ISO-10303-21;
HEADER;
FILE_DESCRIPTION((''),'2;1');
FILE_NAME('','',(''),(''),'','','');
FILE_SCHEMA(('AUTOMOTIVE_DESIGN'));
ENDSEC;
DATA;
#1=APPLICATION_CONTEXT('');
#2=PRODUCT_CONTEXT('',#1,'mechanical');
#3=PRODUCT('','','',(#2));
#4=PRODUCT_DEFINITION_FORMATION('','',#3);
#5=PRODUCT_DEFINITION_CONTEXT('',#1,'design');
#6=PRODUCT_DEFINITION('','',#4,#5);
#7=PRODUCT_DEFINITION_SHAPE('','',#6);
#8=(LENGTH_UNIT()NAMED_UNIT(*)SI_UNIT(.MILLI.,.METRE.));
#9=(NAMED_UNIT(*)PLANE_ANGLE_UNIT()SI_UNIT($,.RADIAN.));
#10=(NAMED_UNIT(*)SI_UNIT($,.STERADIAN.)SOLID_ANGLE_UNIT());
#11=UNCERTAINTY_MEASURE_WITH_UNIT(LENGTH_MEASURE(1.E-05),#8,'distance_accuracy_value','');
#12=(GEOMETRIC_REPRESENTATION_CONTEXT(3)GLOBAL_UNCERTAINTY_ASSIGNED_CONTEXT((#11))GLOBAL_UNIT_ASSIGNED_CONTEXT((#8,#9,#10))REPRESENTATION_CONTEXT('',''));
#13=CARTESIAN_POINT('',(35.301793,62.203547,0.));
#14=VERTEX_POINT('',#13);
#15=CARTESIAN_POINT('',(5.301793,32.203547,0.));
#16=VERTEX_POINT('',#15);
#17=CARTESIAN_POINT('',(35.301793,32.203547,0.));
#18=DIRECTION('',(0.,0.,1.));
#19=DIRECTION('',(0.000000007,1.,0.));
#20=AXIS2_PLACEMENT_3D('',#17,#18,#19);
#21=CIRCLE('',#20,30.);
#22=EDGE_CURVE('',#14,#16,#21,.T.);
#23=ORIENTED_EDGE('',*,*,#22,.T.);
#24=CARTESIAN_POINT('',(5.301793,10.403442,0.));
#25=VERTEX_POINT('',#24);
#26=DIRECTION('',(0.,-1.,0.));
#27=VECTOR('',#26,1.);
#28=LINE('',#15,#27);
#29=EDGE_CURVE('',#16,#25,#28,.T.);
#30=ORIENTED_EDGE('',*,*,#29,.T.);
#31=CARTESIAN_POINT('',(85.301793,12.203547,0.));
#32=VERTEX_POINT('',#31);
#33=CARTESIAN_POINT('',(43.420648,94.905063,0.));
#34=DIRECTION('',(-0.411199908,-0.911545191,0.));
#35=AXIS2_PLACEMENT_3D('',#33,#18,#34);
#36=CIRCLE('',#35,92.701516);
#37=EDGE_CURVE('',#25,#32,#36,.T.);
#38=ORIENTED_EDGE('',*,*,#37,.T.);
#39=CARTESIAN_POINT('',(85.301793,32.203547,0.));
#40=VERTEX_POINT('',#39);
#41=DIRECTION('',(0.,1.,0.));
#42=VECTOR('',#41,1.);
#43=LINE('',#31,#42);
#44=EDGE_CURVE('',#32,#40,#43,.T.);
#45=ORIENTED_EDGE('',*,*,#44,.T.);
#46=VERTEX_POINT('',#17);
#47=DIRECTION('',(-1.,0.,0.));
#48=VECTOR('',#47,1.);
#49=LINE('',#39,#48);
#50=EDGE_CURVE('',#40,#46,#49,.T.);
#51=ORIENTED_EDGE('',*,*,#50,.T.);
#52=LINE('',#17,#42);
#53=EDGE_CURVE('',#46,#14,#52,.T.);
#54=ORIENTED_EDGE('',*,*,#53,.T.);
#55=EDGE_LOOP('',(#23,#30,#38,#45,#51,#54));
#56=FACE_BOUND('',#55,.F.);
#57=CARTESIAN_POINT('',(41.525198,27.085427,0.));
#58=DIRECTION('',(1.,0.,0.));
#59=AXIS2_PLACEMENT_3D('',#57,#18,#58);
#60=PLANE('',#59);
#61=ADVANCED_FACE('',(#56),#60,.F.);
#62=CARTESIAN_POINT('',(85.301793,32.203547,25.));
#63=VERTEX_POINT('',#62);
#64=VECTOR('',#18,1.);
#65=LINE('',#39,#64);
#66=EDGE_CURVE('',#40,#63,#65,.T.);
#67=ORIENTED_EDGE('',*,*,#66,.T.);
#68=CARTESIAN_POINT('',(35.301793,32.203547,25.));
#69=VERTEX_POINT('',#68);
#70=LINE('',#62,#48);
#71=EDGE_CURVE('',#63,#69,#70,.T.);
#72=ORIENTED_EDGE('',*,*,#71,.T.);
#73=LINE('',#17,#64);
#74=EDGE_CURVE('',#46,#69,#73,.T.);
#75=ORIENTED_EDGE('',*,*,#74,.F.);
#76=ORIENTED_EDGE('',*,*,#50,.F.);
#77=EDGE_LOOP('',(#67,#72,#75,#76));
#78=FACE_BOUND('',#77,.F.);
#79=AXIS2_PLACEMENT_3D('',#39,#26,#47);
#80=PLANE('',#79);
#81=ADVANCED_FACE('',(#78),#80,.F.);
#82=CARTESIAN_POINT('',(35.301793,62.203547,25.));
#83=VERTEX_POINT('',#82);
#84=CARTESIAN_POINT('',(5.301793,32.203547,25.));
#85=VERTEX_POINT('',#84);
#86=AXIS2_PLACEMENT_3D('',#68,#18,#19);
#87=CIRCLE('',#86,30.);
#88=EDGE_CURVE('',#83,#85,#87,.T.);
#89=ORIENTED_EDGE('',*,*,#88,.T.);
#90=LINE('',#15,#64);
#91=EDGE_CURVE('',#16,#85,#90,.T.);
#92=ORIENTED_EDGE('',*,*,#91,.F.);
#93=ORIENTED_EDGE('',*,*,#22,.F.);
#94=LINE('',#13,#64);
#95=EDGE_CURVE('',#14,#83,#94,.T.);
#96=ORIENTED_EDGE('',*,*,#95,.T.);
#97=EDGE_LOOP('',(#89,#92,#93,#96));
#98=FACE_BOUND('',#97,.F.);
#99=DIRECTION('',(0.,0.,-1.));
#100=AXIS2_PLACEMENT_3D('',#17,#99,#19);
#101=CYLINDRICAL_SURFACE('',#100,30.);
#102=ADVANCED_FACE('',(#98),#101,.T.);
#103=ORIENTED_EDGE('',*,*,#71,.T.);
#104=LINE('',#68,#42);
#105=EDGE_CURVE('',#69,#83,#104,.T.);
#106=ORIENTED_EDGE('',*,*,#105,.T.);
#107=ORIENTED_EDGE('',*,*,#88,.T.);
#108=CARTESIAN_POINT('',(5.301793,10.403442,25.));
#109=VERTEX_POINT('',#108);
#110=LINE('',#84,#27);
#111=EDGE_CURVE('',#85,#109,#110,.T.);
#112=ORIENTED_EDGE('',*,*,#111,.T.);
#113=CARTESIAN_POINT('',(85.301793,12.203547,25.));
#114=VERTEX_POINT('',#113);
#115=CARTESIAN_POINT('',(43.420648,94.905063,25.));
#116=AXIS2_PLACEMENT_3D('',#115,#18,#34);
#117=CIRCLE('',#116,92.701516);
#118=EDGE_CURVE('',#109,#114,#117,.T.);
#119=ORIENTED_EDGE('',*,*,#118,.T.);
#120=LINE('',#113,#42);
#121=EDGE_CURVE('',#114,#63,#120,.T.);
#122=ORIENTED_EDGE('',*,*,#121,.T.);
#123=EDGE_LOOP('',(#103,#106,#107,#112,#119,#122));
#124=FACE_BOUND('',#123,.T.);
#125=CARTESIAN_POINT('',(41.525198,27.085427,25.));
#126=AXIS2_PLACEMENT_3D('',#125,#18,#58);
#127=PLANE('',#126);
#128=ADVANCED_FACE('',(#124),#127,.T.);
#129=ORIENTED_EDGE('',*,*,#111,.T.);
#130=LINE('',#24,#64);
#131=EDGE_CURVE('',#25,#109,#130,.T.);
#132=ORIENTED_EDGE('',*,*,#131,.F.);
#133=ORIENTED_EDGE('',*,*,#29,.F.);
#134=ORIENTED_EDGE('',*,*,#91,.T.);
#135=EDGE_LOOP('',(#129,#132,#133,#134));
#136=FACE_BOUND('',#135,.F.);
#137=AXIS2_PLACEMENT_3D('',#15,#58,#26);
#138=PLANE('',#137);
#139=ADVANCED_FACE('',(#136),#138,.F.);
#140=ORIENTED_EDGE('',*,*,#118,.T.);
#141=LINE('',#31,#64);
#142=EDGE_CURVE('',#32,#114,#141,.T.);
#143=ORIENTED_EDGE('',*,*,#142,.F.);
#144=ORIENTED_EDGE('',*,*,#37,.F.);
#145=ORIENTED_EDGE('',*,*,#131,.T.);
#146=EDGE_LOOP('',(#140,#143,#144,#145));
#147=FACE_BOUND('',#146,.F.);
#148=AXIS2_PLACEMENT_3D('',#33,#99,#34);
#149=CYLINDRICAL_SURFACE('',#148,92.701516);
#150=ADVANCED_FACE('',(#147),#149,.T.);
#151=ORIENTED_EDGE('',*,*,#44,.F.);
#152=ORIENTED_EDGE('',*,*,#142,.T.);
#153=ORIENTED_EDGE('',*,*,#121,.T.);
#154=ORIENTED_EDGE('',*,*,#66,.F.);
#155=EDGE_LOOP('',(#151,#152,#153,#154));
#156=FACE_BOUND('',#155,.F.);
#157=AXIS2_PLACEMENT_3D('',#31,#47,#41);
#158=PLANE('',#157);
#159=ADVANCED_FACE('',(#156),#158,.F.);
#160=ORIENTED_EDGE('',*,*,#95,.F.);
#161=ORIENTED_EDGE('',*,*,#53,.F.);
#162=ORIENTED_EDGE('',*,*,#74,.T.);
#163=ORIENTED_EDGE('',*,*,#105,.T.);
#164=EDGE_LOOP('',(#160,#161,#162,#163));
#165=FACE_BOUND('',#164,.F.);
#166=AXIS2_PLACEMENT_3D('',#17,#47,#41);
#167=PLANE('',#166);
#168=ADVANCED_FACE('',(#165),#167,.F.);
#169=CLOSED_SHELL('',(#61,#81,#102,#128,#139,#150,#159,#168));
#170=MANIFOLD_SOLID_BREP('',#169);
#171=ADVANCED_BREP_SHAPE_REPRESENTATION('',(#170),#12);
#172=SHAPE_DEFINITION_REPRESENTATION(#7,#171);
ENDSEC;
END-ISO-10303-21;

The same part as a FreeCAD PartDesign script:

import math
import FreeCAD as App
import Part
import Sketcher
from FreeCAD import Vector

doc = App.newDocument("Part")
body = doc.addObject("PartDesign::Body", "Body")

sketch1 = doc.addObject("Sketcher::SketchObject", "Sketch")
body.addObject(sketch1)
sketch1.AttachmentSupport = (doc.XY_Plane, [""])
sketch1.MapMode = "FlatFace"
sketch1.addGeometry([
    Part.LineSegment(Vector(35.301793, 32.203547, 0), Vector(35.301793, 62.203547, 0)),
    Part.ArcOfCircle(Part.Circle(Vector(35.301793, 32.203547, 0), Vector(0, 0, 1), 30), math.radians(90), math.radians(180)),
    Part.LineSegment(Vector(5.301793, 32.203547, 0), Vector(5.301793, 10.403442, 0)),
    Part.ArcOfCircle(Part.Circle(Vector(43.420648, 94.905063, 0), Vector(0, 0, 1), 92.701516), math.radians(-114.280233), math.radians(-63.141741)),
    Part.LineSegment(Vector(85.301793, 12.203547, 0), Vector(85.301793, 32.203547, 0)),
    Part.LineSegment(Vector(85.301793, 32.203547, 0), Vector(35.301793, 32.203547, 0)),
], False)
sketch1.addConstraint([
    Sketcher.Constraint("Coincident", 0, 2, 1, 1),
    Sketcher.Constraint("Tangent", 1, 2, 2, 1),
    Sketcher.Constraint("Coincident", 2, 2, 3, 1),
    Sketcher.Constraint("Coincident", 3, 2, 4, 1),
    Sketcher.Constraint("Coincident", 4, 2, 5, 1),
    Sketcher.Constraint("Coincident", 5, 2, 0, 1),
    Sketcher.Constraint("Vertical", 0),
    Sketcher.Constraint("Vertical", 2),
    Sketcher.Constraint("Vertical", 4),
    Sketcher.Constraint("Horizontal", 5),
    Sketcher.Constraint("Coincident", 5, 2, 1, 3),
    Sketcher.Constraint("Radius", 1, 30.0),
    Sketcher.Constraint("DistanceX", 5, 2, 5, 1, 50.0),
    Sketcher.Constraint("DistanceY", 4, 1, 4, 2, 20.0),
    Sketcher.Constraint("Radius", 3, 92.701516),
    Sketcher.Constraint("DistanceY", 2, 2, 2, 1, 21.800105),
    Sketcher.Constraint("DistanceX", -1, 1, 1, 3, 35.301793),
    Sketcher.Constraint("DistanceY", -1, 1, 1, 3, 32.203547),
])
pad1 = doc.addObject("PartDesign::Pad", "Pad")
body.addObject(pad1)
pad1.Profile = sketch1
pad1.Length = 25

doc.recompute()
